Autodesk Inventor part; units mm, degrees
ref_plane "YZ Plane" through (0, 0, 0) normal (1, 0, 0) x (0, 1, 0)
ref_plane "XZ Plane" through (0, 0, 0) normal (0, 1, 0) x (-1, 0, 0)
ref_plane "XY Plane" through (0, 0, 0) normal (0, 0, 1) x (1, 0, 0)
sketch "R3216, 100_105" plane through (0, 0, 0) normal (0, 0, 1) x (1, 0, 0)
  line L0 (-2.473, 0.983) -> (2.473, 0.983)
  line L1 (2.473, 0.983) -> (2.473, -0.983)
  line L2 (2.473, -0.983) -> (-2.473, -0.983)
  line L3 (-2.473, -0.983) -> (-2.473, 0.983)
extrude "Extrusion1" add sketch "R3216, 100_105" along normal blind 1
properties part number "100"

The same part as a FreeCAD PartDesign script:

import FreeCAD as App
import Part
import Sketcher

V = App.Vector
Q = App.Units.Quantity

doc = App.newDocument("Part")
body = doc.addObject("PartDesign::Body", "Body")

sketch1 = doc.addObject("Sketcher::SketchObject", "Sketch")
body.addObject(sketch1)
sketch1.AttachmentSupport = (doc.XY_Plane, [""])
sketch1.MapMode = "FlatFace"
sketch1.addGeometry([
    Part.LineSegment(V(2.5, 1, 0), V(-2.5, 1, 0)),
    Part.LineSegment(V(-2.5, 1, 0), V(-2.5, -1, 0)),
    Part.LineSegment(V(-2.5, -1, 0), V(2.5, -1, 0)),
    Part.LineSegment(V(2.5, -1, 0), V(2.5, 1, 0)),
], False)
sketch1.addConstraint([
    Sketcher.Constraint("Coincident", 0, 2, 1, 1),
    Sketcher.Constraint("Coincident", 1, 2, 2, 1),
    Sketcher.Constraint("Coincident", 2, 2, 3, 1),
    Sketcher.Constraint("Coincident", 3, 2, 0, 1),
    Sketcher.Constraint("Horizontal", 0),
    Sketcher.Constraint("Vertical", 1),
    Sketcher.Constraint("Horizontal", 2),
    Sketcher.Constraint("Vertical", 3),
    Sketcher.Constraint("Symmetric", 0, 2, 2, 2, -1, 1),
    Sketcher.Constraint("DistanceX", 0, 2, 0, 1, Q("4.946 mm")),
    Sketcher.Constraint("DistanceY", 1, 2, 1, 1, Q("1.966 mm")),
])
pad1 = doc.addObject("PartDesign::Pad", "Pad")
body.addObject(pad1)
pad1.Profile = sketch1
pad1.Length = 1

doc.recompute()
